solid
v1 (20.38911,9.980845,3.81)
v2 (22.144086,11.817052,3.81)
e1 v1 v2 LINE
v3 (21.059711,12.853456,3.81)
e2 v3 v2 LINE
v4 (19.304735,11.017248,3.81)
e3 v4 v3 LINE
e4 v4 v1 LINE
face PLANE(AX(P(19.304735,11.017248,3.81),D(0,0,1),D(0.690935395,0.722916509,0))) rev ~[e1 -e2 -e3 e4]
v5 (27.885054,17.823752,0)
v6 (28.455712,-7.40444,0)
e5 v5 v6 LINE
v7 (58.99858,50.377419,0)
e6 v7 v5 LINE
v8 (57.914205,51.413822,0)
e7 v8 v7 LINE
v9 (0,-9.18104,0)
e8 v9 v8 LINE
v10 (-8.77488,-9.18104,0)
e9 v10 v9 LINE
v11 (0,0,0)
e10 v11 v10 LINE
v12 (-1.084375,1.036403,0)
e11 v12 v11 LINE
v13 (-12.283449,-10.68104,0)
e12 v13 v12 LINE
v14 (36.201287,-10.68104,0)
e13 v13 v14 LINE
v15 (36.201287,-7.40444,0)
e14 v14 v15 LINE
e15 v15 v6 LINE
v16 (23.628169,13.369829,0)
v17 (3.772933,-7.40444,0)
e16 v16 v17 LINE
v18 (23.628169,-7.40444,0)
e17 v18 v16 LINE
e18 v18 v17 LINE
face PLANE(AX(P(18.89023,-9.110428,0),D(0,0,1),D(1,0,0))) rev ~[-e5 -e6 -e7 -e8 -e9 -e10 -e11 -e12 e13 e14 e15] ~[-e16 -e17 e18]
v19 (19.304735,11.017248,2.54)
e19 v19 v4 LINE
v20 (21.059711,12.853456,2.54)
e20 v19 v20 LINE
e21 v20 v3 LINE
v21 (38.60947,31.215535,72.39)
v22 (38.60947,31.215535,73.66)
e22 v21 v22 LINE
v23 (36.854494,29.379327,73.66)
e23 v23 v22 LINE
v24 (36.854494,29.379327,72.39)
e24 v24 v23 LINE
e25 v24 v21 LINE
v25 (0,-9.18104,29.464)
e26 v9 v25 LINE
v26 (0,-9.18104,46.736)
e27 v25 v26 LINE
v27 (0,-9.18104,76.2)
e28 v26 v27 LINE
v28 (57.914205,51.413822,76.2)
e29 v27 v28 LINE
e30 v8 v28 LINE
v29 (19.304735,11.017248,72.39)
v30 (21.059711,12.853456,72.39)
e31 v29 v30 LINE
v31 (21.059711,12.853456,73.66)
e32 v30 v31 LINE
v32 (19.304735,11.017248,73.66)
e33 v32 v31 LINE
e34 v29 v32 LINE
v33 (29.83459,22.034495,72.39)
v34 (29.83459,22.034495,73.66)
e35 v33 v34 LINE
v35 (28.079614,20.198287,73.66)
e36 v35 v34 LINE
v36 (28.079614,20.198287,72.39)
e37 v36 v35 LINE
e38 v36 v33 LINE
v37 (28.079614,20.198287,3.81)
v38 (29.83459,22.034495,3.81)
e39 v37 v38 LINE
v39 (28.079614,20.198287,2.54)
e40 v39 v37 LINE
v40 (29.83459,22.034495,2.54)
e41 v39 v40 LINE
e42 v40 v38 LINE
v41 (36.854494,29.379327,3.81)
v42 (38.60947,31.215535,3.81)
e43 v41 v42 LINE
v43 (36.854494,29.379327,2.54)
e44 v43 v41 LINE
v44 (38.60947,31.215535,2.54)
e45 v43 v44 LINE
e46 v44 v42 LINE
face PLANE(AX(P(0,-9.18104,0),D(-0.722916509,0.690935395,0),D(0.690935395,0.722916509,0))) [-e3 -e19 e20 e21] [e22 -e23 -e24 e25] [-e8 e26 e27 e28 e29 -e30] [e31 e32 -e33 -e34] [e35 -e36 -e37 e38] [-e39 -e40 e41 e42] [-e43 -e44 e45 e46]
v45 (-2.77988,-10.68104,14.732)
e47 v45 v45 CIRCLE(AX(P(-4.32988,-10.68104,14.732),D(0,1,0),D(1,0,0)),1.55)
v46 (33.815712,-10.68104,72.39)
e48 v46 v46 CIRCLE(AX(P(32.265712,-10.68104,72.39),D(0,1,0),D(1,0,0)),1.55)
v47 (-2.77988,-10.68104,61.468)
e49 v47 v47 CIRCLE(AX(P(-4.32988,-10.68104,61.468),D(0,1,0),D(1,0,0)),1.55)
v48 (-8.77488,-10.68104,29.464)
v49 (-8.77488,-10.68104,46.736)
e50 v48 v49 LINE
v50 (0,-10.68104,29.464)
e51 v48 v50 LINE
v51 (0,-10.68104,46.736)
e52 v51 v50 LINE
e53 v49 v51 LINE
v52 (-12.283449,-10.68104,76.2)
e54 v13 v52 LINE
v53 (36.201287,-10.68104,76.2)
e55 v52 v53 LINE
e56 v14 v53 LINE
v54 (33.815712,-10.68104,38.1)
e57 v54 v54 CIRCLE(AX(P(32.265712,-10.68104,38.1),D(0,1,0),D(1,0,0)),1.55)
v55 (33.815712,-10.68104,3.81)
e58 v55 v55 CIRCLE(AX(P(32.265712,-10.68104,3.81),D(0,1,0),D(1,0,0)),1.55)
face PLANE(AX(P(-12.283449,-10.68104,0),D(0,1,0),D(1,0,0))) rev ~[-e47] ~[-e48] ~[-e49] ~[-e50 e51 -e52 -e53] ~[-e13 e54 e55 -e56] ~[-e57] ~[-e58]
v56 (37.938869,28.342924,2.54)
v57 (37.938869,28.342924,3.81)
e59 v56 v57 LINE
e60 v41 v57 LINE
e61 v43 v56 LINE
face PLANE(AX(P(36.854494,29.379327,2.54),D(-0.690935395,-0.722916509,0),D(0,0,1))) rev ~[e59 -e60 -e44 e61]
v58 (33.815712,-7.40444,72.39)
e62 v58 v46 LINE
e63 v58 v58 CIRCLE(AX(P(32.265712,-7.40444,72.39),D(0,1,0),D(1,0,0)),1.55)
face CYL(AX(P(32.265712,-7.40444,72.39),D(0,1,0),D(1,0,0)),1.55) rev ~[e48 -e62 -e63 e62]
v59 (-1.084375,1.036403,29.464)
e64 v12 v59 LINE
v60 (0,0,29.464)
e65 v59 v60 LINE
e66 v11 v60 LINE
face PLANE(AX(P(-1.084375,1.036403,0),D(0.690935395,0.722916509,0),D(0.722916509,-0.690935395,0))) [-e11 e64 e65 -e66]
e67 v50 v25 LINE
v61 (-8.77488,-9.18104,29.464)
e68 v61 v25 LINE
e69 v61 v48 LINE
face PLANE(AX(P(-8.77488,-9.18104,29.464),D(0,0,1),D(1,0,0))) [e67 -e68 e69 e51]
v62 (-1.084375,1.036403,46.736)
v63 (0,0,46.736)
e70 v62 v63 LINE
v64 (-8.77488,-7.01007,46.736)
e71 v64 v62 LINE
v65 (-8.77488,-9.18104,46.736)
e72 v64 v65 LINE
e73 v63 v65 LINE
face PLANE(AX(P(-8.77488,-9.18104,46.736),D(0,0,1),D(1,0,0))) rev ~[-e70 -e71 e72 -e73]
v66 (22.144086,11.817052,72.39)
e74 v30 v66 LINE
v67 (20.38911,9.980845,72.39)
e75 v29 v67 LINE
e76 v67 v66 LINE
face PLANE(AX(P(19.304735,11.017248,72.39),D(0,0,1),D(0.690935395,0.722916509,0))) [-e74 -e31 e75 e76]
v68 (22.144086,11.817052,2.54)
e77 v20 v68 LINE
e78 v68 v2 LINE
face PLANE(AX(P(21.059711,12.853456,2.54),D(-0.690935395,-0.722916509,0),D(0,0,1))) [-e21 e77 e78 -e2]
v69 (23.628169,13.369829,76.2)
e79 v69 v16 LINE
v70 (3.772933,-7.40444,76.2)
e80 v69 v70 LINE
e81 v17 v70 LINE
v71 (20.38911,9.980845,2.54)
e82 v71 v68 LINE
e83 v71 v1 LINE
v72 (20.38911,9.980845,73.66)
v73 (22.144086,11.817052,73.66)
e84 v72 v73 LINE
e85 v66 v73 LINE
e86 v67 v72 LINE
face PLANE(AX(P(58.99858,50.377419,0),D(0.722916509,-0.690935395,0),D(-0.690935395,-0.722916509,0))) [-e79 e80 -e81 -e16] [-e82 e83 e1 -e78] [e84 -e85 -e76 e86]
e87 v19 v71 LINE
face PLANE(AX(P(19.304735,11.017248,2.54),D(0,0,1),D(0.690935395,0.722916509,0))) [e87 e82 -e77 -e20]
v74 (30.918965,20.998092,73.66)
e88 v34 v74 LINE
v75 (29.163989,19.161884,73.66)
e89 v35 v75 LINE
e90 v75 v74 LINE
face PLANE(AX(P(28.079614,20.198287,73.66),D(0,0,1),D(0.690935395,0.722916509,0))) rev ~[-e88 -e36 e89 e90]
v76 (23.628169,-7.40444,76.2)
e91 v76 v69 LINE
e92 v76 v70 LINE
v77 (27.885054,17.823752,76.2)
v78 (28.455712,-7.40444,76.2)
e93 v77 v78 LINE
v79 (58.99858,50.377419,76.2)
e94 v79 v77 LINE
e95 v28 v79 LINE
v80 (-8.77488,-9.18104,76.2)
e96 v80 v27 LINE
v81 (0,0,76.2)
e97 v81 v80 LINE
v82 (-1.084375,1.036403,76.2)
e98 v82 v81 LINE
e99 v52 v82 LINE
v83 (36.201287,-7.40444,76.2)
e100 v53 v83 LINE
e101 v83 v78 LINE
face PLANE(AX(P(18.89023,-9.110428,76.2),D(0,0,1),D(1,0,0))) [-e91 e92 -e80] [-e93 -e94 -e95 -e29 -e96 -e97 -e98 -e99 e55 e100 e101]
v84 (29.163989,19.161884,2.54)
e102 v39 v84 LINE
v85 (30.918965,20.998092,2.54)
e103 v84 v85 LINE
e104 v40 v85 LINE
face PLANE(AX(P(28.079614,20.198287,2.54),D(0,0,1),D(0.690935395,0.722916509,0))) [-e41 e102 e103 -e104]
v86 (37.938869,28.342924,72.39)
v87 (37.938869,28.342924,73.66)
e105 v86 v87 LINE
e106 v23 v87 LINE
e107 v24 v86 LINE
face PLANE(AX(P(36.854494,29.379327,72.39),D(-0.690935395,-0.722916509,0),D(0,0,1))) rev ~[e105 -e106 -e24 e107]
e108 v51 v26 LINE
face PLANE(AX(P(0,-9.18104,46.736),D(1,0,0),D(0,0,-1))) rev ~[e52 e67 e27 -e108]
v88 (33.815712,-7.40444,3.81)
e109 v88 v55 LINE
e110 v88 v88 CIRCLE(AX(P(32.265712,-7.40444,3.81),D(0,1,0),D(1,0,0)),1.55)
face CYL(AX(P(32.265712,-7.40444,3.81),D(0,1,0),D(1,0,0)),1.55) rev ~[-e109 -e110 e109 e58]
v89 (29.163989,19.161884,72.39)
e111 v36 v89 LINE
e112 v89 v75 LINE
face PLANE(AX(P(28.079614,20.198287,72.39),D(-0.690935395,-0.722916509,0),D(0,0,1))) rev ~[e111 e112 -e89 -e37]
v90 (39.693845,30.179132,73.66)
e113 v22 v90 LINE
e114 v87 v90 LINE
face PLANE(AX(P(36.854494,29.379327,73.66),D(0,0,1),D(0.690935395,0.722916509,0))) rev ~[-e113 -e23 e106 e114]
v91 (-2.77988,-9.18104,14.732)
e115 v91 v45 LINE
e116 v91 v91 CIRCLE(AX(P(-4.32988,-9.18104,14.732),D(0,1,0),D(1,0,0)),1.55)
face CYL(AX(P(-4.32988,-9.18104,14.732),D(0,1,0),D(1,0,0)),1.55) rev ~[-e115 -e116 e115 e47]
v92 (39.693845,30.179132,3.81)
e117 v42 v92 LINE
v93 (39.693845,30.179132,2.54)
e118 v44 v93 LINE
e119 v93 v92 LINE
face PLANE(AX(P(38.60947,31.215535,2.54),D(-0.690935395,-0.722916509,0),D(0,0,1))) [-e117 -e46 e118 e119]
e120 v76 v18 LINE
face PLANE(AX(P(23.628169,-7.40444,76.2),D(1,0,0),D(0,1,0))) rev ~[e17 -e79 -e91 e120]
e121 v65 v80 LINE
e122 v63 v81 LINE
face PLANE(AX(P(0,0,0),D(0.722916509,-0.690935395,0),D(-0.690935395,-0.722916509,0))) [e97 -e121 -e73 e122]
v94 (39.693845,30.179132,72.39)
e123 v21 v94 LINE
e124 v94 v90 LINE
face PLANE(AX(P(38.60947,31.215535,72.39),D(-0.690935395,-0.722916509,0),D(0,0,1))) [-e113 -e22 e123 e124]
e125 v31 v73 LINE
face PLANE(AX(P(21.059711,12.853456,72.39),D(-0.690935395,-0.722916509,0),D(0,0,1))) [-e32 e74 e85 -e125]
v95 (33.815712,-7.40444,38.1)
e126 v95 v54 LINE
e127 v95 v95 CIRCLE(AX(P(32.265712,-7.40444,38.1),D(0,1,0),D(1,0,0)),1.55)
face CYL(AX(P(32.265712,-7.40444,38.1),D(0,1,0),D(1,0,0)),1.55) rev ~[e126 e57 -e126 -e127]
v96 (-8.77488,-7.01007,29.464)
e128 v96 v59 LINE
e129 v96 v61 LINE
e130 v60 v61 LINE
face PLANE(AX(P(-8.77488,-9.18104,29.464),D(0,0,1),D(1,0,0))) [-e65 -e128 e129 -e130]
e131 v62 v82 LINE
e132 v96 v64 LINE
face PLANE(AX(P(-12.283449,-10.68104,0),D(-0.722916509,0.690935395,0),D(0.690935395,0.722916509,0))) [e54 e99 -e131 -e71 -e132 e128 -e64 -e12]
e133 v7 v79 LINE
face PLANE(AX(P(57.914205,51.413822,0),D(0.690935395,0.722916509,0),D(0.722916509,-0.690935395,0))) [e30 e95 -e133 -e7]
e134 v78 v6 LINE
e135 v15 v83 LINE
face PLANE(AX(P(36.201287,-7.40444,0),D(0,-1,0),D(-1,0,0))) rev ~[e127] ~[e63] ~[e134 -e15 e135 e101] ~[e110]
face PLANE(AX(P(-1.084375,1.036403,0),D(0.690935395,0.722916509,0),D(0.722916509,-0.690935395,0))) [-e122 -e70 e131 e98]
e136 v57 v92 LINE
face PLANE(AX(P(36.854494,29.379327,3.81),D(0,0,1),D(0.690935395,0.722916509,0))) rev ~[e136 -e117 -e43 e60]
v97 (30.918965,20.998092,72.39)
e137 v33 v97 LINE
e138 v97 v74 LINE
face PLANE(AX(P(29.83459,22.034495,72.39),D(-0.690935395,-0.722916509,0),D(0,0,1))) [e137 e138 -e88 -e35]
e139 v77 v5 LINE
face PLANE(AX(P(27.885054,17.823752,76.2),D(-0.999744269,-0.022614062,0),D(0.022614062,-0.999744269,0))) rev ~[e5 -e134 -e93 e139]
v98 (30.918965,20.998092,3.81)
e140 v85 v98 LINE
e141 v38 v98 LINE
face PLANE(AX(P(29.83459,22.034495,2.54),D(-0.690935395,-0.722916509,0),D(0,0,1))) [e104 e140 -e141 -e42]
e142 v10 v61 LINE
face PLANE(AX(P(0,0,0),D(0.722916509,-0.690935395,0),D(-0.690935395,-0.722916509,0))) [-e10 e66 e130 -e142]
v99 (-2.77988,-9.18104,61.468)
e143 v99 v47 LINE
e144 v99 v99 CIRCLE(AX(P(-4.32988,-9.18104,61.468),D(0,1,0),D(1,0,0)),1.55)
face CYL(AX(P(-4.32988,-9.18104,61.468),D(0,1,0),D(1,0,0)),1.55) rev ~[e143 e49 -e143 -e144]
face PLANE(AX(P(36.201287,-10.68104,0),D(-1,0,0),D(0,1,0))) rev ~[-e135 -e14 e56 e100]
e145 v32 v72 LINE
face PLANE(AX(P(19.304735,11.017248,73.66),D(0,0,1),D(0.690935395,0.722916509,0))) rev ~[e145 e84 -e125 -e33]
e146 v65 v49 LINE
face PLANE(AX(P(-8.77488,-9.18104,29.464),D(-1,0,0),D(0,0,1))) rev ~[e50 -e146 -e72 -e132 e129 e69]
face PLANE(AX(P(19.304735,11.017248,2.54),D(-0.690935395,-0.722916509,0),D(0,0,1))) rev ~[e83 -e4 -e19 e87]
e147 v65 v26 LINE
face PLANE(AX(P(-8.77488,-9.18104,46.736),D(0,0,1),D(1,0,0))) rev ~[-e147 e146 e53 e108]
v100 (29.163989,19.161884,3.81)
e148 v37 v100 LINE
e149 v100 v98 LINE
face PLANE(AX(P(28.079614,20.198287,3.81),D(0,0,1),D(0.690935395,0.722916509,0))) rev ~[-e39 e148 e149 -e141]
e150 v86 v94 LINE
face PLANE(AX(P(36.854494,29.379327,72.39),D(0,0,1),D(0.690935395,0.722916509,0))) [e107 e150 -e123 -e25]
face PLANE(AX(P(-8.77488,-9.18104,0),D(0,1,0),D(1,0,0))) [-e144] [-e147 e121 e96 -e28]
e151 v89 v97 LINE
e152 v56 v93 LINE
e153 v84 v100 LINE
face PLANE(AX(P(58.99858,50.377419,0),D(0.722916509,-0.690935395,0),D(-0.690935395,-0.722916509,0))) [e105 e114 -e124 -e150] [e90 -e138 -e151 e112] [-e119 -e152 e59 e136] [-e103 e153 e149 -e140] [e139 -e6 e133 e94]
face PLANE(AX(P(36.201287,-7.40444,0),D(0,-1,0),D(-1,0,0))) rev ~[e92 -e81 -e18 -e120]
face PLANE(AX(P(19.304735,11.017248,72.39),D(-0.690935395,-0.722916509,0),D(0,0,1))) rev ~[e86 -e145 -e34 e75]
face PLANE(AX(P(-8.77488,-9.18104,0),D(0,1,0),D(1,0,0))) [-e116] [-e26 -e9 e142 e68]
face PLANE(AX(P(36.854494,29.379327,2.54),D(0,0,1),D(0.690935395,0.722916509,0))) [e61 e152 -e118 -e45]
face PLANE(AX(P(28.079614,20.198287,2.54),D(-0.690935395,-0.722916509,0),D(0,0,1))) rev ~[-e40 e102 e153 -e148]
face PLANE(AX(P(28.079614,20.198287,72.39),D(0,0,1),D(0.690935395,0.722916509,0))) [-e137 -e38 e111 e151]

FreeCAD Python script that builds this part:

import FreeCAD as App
import Part
import Sketcher
from FreeCAD import Vector
Q = App.Units.Quantity


def add_polygon(sketch, points):
    """Adds a closed chain of lines whose ends are joined by coincident constraints."""
    first, n = sketch.GeometryCount, len(points)
    for a, b in zip(points, points[1:] + points[:1]):
        sketch.addGeometry(Part.LineSegment(App.Vector(*a, 0), App.Vector(*b, 0)), False)
    for i in range(n):
        sketch.addConstraint(Sketcher.Constraint("Coincident", first + i, 2, first + (i + 1) % n, 1))

doc = App.newDocument("Part")
body = doc.addObject("PartDesign::Body", "Body")

sketch1 = body.newObject("Sketcher::SketchObject", "Sketch")
sketch1.AttachmentSupport = (doc.getObject("XY_Plane"), [""])
sketch1.MapMode = "FlatFace"
add_polygon(sketch1, [(36.2, -10.7), (36.2, -7.4), (3.8, -7.4), (59, 50.4), (57.9, 51.4), (0, -9.2), (-8.8, -9.2), (0, 0), (-1.1, 1), (-12.3, -10.7)])
sketch1.addConstraint(Sketcher.Constraint("Vertical", 0))
sketch1.addConstraint(Sketcher.Constraint("Horizontal", 1))
sketch1.addConstraint(Sketcher.Constraint("Horizontal", 5))
sketch1.addConstraint(Sketcher.Constraint("Horizontal", 9))
sketch1.addConstraint(Sketcher.Constraint("Coincident", 6, 2, -1, 1))
sketch1.addConstraint(Sketcher.Constraint("PointOnObject", 4, 2, -2))
sketch1.addConstraint(Sketcher.Constraint("Perpendicular", 2, 3))
sketch1.addConstraint(Sketcher.Constraint("Perpendicular", 3, 4))
sketch1.addConstraint(Sketcher.Constraint("Parallel", 4, 6))
sketch1.addConstraint(Sketcher.Constraint("Perpendicular", 6, 7))
sketch1.addConstraint(Sketcher.Constraint("Perpendicular", 7, 8))
sketch1.addConstraint(Sketcher.Constraint("Equal", 3, 7))
sketch1.addConstraint(Sketcher.Constraint("Distance", 4, Q("3.3 in")))
sketch1.addConstraint(Sketcher.Constraint("Distance", 6, Q("0.5 in")))
sketch1.addConstraint(Sketcher.Constraint("DistanceY", 0, 1, 0, 2, Q("0.129 in")))
sketch1.addConstraint(Sketcher.Constraint("Distance", 3, 1.5))
sketch1.addConstraint(Sketcher.Constraint("DistanceX", 5, 2, 5, 1, 8.77488))
sketch1.addConstraint(Sketcher.Constraint("DistanceY", 4, 2, 1, 2, 1.7766))
sketch1.addConstraint(Sketcher.Constraint("DistanceX", 1, 2, 1, 1, 32.428354))
pad1 = body.newObject("PartDesign::Pad", "Pad")
pad1.Profile = sketch1
pad1.Length = Q("3 in")

sketch2 = body.newObject("Sketcher::SketchObject", "Sketch001")
sketch2.AttachmentSupport = (doc.getObject("XZ_Plane"), [""])
sketch2.MapMode = "FlatFace"
sketch2.AttachmentOffset = App.Placement(Vector(0, 0, 9.18104), App.Rotation())
add_polygon(sketch2, [(-9, 47), (0, 47), (0, 29), (-9, 29)])
sketch2.addConstraint(Sketcher.Constraint("Horizontal", 0))
sketch2.addConstraint(Sketcher.Constraint("Vertical", 1))
sketch2.addConstraint(Sketcher.Constraint("Horizontal", 2))
sketch2.addConstraint(Sketcher.Constraint("Vertical", 3))
sketch2.addConstraint(Sketcher.Constraint("PointOnObject", 0, 2, -2))
sketch2.addConstraint(Sketcher.Constraint("DistanceY", 1, 2, 1, 1, Q("0.68 in")))
sketch2.addConstraint(Sketcher.Constraint("DistanceY", -1, 1, 0, 2, Q("1.84 in")))
sketch2.addConstraint(Sketcher.Constraint("DistanceX", 0, 1, 0, 2, 8.77488))
pocket1 = body.newObject("PartDesign::Pocket", "Pocket")
pocket1.Profile = sketch2
pocket1.Length = Q("2.6 in")
pocket1.Midplane = True

sketch3 = body.newObject("Sketcher::SketchObject", "Sketch002")
sketch3.Placement = App.Placement(Vector(4.585825, -4.382952, 0), App.Rotation(Vector(0, 0, 1), Vector(0.690935395, 0.722916509, 0), Vector(-0.722916509, 0.690935395, 0), "ZXY"))
add_polygon(sketch3, [(2.5, 23.8), (2.5, 21.3), (3.8, 21.3), (3.8, 23.8)])
add_polygon(sketch3, [(2.5, 36.5), (2.5, 34), (3.8, 34), (3.8, 36.5)])
add_polygon(sketch3, [(2.5, 49.2), (2.5, 46.7), (3.8, 46.7), (3.8, 49.2)])
add_polygon(sketch3, [(72.4, 23.8), (72.4, 21.3), (73.7, 21.3), (73.7, 23.8)])
add_polygon(sketch3, [(72.4, 36.5), (72.4, 34), (73.7, 34), (73.7, 36.5)])
add_polygon(sketch3, [(72.4, 49.2), (72.4, 46.7), (73.7, 46.7), (73.7, 49.2)])
sketch3.addConstraint(Sketcher.Constraint("Vertical", 0))
sketch3.addConstraint(Sketcher.Constraint("Horizontal", 1))
sketch3.addConstraint(Sketcher.Constraint("Vertical", 2))
sketch3.addConstraint(Sketcher.Constraint("Horizontal", 3))
sketch3.addConstraint(Sketcher.Constraint("Vertical", 4))
sketch3.addConstraint(Sketcher.Constraint("Horizontal", 5))
sketch3.addConstraint(Sketcher.Constraint("Vertical", 6))
sketch3.addConstraint(Sketcher.Constraint("Horizontal", 7))
sketch3.addConstraint(Sketcher.Constraint("Vertical", 8))
sketch3.addConstraint(Sketcher.Constraint("Horizontal", 9))
sketch3.addConstraint(Sketcher.Constraint("Vertical", 10))
sketch3.addConstraint(Sketcher.Constraint("Horizontal", 11))
sketch3.addConstraint(Sketcher.Constraint("Vertical", 12))
sketch3.addConstraint(Sketcher.Constraint("Horizontal", 13))
sketch3.addConstraint(Sketcher.Constraint("Vertical", 14))
sketch3.addConstraint(Sketcher.Constraint("Horizontal", 15))
sketch3.addConstraint(Sketcher.Constraint("Vertical", 16))
sketch3.addConstraint(Sketcher.Constraint("Horizontal", 17))
sketch3.addConstraint(Sketcher.Constraint("Vertical", 18))
sketch3.addConstraint(Sketcher.Constraint("Horizontal", 19))
sketch3.addConstraint(Sketcher.Constraint("Vertical", 20))
sketch3.addConstraint(Sketcher.Constraint("Horizontal", 21))
sketch3.addConstraint(Sketcher.Constraint("Vertical", 22))
sketch3.addConstraint(Sketcher.Constraint("Horizontal", 23))
sketch3.addConstraint(Sketcher.Constraint("Horizontal", 1, 2, 12, 2))
sketch3.addConstraint(Sketcher.Constraint("Horizontal", 3, 2, 14, 2))
sketch3.addConstraint(Sketcher.Constraint("Horizontal", 5, 2, 16, 2))
sketch3.addConstraint(Sketcher.Constraint("Horizontal", 7, 2, 18, 2))
sketch3.addConstraint(Sketcher.Constraint("Horizontal", 9, 2, 20, 2))
sketch3.addConstraint(Sketcher.Constraint("Horizontal", 11, 2, 22, 2))
sketch3.addConstraint(Sketcher.Constraint("Vertical", 3, 2, 4, 2))
sketch3.addConstraint(Sketcher.Constraint("Vertical", 2, 2, 5, 2))
sketch3.addConstraint(Sketcher.Constraint("Vertical", 7, 2, 8, 2))
sketch3.addConstraint(Sketcher.Constraint("Vertical", 6, 2, 9, 2))
sketch3.addConstraint(Sketcher.Constraint("Vertical", 15, 2, 16, 2))
sketch3.addConstraint(Sketcher.Constraint("Vertical", 14, 2, 17, 2))
sketch3.addConstraint(Sketcher.Constraint("Vertical", 19, 2, 20, 2))
sketch3.addConstraint(Sketcher.Constraint("Vertical", 18, 2, 21, 2))
sketch3.addConstraint(Sketcher.Constraint("Equal", 11, 13))
sketch3.addConstraint(Sketcher.Constraint("Equal", 2, 4))
sketch3.addConstraint(Sketcher.Constraint("Equal", 6, 8))
sketch3.addConstraint(Sketcher.Constraint("DistanceY", 0, 2, 0, 1, Q("0.1 in")))
sketch3.addConstraint(Sketcher.Constraint("DistanceX", 1, 1, 1, 2, Q("0.05 in")))
sketch3.addConstraint(Sketcher.Constraint("DistanceX", -1, 1, 0, 2, Q("0.1 in")))
sketch3.addConstraint(Sketcher.Constraint("DistanceX", -1, 1, 13, 2, Q("2.9 in")))
sketch3.addConstraint(Sketcher.Constraint("DistanceY", 3, 2, 4, 2, Q("0.4 in")))
sketch3.addConstraint(Sketcher.Constraint("DistanceY", 7, 2, 8, 2, Q("0.4 in")))
sketch3.addConstraint(Sketcher.Constraint("DistanceY", -1, 1, 0, 2, 21.302875))
pocket2 = body.newObject("PartDesign::Pocket", "Pocket001")
pocket2.Profile = sketch3
pocket2.Length = 1.5

sketch4 = body.newObject("Sketcher::SketchObject", "Sketch003")
sketch4.AttachmentSupport = (doc.getObject("XY_Plane"), [""])
sketch4.MapMode = "FlatFace"
sketch4.AttachmentOffset = App.Placement(Vector(0, 0, 3 * 25.4), App.Rotation())
add_polygon(sketch4, [(23.6, 13.4), (23.6, -7.4), (28.5, -7.4), (27.9, 17.8)])
sketch4.addConstraint(Sketcher.Constraint("Vertical", 0))
sketch4.addConstraint(Sketcher.Constraint("Horizontal", 1))
sketch4.addConstraint(Sketcher.Constraint("DistanceY", 0, 2, 0, 1, 20.774268))
sketch4.addConstraint(Sketcher.Constraint("DistanceX", 1, 1, 1, 2, 4.827544))
sketch4.addConstraint(Sketcher.Constraint("DistanceX", -1, 1, 0, 2, 23.628169))
sketch4.addConstraint(Sketcher.Constraint("DistanceY", 0, 2, -1, 1, 7.40444))
sketch4.addConstraint(Sketcher.Constraint("DistanceY", -1, 1, 2, 2, 17.823752))
sketch4.addConstraint(Sketcher.Constraint("Distance", 2, 25.234645))
pad2 = body.newObject("PartDesign::Pad", "Pad001")
pad2.Profile = sketch4
pad2.Length = Q("3 in")
pad2.Reversed = True

sketch5 = body.newObject("Sketcher::SketchObject", "Sketch004")
sketch5.AttachmentSupport = (doc.getObject("XZ_Plane"), [""])
sketch5.MapMode = "FlatFace"
sketch5.AttachmentOffset = App.Placement(Vector(0, 0, 7.40444), App.Rotation())
sketch5.addGeometry(Part.Circle(Vector(32.3, 72.4, 0), Vector(0, 0, 1), 1.6), False)
sketch5.addGeometry(Part.Circle(Vector(32.3, 3.8, 0), Vector(0, 0, 1), 1.6), False)
sketch5.addGeometry(Part.Circle(Vector(32.3, 38.1, 0), Vector(0, 0, 1), 1.6), False)
sketch5.addConstraint(Sketcher.Constraint("Equal", 0, 1))
sketch5.addConstraint(Sketcher.Constraint("Equal", 1, 2))
sketch5.addConstraint(Sketcher.Constraint("Vertical", 0, 3, 1, 3))
sketch5.addConstraint(Sketcher.Constraint("Vertical", 1, 3, 2, 3))
sketch5.addConstraint(Sketcher.Constraint("DistanceY", -1, 1, 2, 3, Q("1.5 in")))
sketch5.addConstraint(Sketcher.Constraint("DistanceY", 1, 3, 0, 3, Q("2.7 in")))
sketch5.addConstraint(Sketcher.Constraint("Diameter", 0, 3.1))
sketch5.addConstraint(Sketcher.Constraint("DistanceY", -1, 1, 0, 3, Q("2.85 in")))
sketch5.addConstraint(Sketcher.Constraint("DistanceX", -1, 1, 0, 3, 32.265712))
pocket3 = body.newObject("PartDesign::Pocket", "Pocket002")
pocket3.Profile = sketch5
pocket3.Length = Q("0.129 in")
pocket3.Reversed = True

sketch6 = body.newObject("Sketcher::SketchObject", "Sketch005")
sketch6.AttachmentSupport = (doc.getObject("XZ_Plane"), [""])
sketch6.MapMode = "FlatFace"
sketch6.AttachmentOffset = App.Placement(Vector(0, 0, 9.18104), App.Rotation())
sketch6.addGeometry(Part.Circle(Vector(-4.3, 61.5, 0), Vector(0, 0, 1), 1.6), False)
sketch6.addGeometry(Part.Circle(Vector(-4.3, 14.7, 0), Vector(0, 0, 1), 1.6), False)
sketch6.addConstraint(Sketcher.Constraint("Equal", 0, 1))
sketch6.addConstraint(Sketcher.Constraint("Vertical", 0, 3, 1, 3))
sketch6.addConstraint(Sketcher.Constraint("Diameter", 0, 3.1))
sketch6.addConstraint(Sketcher.Constraint("DistanceY", -1, 1, 0, 3, Q("2.42 in")))
sketch6.addConstraint(Sketcher.Constraint("DistanceY", -1, 1, 1, 3, Q("0.58 in")))
sketch6.addConstraint(Sketcher.Constraint("DistanceX", 0, 3, -1, 1, 4.32988))
pocket4 = body.newObject("PartDesign::Pocket", "Pocket003")
pocket4.Profile = sketch6
pocket4.Length = 1.5
pocket4.Reversed = True

doc.recompute()
